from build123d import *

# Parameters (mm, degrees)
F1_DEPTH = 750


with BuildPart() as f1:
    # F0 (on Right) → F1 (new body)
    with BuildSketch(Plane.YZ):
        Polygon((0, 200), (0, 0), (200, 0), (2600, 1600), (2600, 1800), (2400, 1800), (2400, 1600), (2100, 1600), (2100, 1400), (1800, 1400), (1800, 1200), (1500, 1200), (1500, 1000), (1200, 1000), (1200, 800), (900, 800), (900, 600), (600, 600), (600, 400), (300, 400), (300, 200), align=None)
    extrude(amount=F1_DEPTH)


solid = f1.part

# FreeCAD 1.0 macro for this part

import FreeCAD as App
import Part
import Sketcher


def add_polygon(sketch, points):
    """Adds a closed chain of lines whose ends are joined by coincident constraints."""
    first, n = sketch.GeometryCount, len(points)
    for a, b in zip(points, points[1:] + points[:1]):
        sketch.addGeometry(Part.LineSegment(App.Vector(*a, 0), App.Vector(*b, 0)), False)
    for i in range(n):
        sketch.addConstraint(Sketcher.Constraint("Coincident", first + i, 2, first + (i + 1) % n, 1))

doc = App.newDocument("Part")
body = doc.addObject("PartDesign::Body", "Body")

# Sketch on YZ plane
sketch1 = body.newObject("Sketcher::SketchObject", "Sketch")
sketch1.AttachmentSupport = (doc.getObject("YZ_Plane"), [""])
sketch1.MapMode = "FlatFace"
add_polygon(sketch1, [(0, 200), (0, 0), (200, 0), (2600, 1600), (2600, 1800), (2400, 1800), (2400, 1600), (2100, 1600), (2100, 1400), (1800, 1400), (1800, 1200), (1500, 1200), (1500, 1000), (1200, 1000), (1200, 800), (900, 800), (900, 600), (600, 600), (600, 400), (300, 400), (300, 200)])  # lines 0-20
sketch1.addConstraint([
    Sketcher.Constraint("Vertical", 0),
    Sketcher.Constraint("Horizontal", 1),
    Sketcher.Constraint("Vertical", 3),
    Sketcher.Constraint("Horizontal", 4),
    Sketcher.Constraint("Vertical", 5),
    Sketcher.Constraint("Horizontal", 6),
    Sketcher.Constraint("Vertical", 7),
    Sketcher.Constraint("Horizontal", 8),
    Sketcher.Constraint("Vertical", 9),
    Sketcher.Constraint("Horizontal", 10),
    Sketcher.Constraint("Vertical", 11),
    Sketcher.Constraint("Horizontal", 12),
    Sketcher.Constraint("Vertical", 13),
    Sketcher.Constraint("Horizontal", 14),
    Sketcher.Constraint("Vertical", 15),
    Sketcher.Constraint("Horizontal", 16),
    Sketcher.Constraint("Vertical", 17),
    Sketcher.Constraint("Horizontal", 18),
    Sketcher.Constraint("Vertical", 19),
    Sketcher.Constraint("Horizontal", 20),
    Sketcher.Constraint("Coincident", 0, 2, -1, 1),
    Sketcher.Constraint("Horizontal", 2, 2, 5, 2),
    Sketcher.Constraint("Equal", 1, 4),
    Sketcher.Constraint("Equal", 6, 8),
    Sketcher.Constraint("Equal", 8, 10),
    Sketcher.Constraint("Equal", 10, 12),
    Sketcher.Constraint("Equal", 12, 14),
    Sketcher.Constraint("Equal", 14, 16),
    Sketcher.Constraint("Equal", 16, 18),
    Sketcher.Constraint("Equal", 18, 20),
    Sketcher.Constraint("Equal", 4, 0),
    Sketcher.Constraint("Equal", 0, 3),
    Sketcher.Constraint("Equal", 5, 7),
    Sketcher.Constraint("Equal", 7, 9),
    Sketcher.Constraint("Equal", 9, 11),
    Sketcher.Constraint("Equal", 11, 13),
    Sketcher.Constraint("Equal", 13, 15),
    Sketcher.Constraint("Equal", 15, 17),
    Sketcher.Constraint("Equal", 17, 19),
    Sketcher.Constraint("DistanceX", 1, 1, 1, 2, 200.0),
    Sketcher.Constraint("DistanceX", 6, 2, 6, 1, 300.0),
])
pad1 = body.newObject("PartDesign::Pad", "Pad")
pad1.Profile = sketch1
pad1.Length = 750

doc.recompute()
